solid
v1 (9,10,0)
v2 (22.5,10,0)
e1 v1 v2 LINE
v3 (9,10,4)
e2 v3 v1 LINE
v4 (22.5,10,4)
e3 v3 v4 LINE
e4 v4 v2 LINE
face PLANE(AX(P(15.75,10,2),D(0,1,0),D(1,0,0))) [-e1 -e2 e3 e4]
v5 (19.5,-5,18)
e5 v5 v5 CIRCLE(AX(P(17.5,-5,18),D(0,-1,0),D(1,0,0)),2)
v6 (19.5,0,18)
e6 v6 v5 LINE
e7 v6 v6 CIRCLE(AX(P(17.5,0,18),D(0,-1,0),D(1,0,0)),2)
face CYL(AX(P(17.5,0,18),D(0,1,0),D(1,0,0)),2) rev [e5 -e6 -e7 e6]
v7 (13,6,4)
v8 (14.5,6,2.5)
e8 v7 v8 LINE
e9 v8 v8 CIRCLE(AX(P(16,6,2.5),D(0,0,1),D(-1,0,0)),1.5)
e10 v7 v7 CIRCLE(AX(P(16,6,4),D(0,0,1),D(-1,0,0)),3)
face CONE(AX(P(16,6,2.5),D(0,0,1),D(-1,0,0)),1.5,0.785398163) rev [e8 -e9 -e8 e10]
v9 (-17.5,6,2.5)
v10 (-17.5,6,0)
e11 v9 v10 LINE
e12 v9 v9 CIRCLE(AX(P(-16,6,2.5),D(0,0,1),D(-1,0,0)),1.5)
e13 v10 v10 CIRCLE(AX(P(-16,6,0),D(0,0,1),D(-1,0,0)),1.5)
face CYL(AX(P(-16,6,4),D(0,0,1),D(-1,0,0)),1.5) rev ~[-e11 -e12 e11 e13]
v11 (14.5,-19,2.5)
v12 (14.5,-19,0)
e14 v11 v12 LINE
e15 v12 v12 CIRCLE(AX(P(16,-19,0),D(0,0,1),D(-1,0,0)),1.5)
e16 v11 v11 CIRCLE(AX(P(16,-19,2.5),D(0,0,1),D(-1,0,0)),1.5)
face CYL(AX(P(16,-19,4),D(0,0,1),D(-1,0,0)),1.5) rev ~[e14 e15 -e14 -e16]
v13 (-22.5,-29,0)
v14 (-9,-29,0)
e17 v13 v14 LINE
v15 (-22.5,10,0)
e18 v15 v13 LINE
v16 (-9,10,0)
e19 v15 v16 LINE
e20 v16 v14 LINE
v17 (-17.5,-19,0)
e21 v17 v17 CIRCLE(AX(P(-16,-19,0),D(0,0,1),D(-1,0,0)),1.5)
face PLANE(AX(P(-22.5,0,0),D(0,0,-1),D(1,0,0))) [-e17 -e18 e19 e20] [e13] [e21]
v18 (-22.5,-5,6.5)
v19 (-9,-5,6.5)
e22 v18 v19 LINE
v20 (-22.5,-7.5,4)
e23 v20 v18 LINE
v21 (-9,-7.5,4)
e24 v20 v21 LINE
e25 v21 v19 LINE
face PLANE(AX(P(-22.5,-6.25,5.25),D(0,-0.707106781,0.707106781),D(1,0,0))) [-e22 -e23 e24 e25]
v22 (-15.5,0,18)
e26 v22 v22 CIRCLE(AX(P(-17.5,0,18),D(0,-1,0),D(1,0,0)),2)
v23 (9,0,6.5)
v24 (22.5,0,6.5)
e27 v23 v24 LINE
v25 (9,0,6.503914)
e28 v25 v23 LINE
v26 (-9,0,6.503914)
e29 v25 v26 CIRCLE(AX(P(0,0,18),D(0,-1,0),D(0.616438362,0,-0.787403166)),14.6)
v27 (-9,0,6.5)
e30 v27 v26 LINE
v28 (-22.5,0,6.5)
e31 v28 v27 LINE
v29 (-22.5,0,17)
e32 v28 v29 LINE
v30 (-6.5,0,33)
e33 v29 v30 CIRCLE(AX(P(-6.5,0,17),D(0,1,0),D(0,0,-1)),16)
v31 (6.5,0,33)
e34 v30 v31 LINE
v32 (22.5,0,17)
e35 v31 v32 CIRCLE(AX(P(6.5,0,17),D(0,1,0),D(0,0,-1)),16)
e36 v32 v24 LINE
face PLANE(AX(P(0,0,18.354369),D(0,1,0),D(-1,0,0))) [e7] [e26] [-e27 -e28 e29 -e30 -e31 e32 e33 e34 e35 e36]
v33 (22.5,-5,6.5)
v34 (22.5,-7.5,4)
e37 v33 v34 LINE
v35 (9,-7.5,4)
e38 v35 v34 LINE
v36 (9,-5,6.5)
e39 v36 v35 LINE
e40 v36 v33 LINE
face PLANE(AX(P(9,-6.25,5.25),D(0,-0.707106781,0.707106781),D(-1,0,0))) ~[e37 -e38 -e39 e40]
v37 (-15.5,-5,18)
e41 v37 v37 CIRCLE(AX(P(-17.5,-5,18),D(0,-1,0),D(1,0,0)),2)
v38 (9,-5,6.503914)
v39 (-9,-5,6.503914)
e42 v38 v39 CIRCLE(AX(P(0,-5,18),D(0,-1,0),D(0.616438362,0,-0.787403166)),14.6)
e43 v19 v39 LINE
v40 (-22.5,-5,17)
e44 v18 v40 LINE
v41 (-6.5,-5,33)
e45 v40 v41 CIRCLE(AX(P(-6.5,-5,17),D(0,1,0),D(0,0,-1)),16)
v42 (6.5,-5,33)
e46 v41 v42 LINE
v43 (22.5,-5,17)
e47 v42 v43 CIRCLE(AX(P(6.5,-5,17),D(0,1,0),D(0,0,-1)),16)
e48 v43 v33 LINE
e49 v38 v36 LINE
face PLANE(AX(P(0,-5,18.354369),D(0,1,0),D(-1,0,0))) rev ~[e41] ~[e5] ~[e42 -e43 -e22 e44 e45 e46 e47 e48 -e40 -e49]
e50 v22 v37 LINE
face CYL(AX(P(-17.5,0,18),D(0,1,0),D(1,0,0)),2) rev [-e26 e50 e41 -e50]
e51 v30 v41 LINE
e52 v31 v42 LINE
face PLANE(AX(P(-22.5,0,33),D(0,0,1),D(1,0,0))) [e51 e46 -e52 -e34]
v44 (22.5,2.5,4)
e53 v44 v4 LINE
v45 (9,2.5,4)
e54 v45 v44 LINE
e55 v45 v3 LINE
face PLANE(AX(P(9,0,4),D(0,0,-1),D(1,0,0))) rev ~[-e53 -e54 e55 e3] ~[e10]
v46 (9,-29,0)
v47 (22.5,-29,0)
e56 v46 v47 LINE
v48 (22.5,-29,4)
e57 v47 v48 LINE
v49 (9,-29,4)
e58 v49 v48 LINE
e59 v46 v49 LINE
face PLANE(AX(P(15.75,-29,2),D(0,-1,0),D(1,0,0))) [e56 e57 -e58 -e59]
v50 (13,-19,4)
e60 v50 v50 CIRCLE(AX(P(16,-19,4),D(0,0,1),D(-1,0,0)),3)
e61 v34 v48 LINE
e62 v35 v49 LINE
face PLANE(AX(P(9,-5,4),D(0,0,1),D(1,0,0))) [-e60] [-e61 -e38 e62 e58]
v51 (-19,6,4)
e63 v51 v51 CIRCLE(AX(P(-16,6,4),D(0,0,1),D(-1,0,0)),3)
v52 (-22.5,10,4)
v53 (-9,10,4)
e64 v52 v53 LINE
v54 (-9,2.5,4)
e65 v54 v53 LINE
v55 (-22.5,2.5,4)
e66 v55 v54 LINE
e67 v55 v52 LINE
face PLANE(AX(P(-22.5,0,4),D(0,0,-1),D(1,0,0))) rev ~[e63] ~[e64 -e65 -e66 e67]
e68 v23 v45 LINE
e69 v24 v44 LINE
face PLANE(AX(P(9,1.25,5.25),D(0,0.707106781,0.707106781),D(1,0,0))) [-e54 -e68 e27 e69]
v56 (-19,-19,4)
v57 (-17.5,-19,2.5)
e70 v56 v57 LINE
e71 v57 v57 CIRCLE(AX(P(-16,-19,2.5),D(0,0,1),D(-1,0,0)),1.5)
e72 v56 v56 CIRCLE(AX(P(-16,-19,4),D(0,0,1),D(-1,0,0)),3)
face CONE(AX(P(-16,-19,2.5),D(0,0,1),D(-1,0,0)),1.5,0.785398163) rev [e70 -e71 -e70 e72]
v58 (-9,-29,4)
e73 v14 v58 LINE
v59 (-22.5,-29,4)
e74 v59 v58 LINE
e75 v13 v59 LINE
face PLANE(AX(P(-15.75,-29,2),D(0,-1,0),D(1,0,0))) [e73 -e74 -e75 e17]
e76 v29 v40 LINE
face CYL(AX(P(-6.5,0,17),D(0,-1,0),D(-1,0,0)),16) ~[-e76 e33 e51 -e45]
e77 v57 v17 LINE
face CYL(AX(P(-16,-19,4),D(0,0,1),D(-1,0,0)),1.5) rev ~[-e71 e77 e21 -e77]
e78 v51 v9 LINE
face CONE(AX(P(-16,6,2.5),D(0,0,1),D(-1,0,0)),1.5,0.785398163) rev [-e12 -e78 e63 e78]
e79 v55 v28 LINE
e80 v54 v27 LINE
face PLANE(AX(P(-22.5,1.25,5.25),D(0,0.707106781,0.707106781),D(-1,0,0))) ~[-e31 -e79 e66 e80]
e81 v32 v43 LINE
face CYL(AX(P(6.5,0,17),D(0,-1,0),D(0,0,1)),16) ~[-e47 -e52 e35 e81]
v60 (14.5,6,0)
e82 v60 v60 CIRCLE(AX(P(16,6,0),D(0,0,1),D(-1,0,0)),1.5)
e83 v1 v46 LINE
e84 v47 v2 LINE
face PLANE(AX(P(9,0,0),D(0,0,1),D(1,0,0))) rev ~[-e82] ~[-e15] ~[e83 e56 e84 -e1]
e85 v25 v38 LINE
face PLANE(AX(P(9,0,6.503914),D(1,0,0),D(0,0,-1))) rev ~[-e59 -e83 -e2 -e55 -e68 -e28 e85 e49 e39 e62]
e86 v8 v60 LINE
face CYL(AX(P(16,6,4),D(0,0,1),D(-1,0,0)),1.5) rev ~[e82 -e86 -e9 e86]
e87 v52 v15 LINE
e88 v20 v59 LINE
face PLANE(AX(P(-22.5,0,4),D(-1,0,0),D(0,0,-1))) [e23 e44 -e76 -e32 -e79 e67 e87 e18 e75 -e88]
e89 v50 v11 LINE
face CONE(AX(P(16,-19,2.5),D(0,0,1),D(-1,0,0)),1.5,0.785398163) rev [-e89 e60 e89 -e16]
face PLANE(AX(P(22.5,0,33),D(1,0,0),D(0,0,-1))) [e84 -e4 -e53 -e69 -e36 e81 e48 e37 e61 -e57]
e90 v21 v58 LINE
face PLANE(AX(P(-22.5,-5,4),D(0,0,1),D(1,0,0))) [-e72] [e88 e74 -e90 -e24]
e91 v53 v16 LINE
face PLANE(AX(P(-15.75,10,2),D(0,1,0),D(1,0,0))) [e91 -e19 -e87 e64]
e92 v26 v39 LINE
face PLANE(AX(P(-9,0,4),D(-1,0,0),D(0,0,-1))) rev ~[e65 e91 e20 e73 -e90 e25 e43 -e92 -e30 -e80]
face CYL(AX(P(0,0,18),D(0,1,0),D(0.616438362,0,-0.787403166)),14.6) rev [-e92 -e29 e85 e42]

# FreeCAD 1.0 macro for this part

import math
import FreeCAD as App
import Part
import Sketcher

V = App.Vector


def edges_at(feature, points):
    """Names of the edges that pass closest to the given points."""
    edges = feature.Shape.Edges
    near = lambda p: min(range(len(edges)), key=lambda i: edges[i].distToShape(Part.Vertex(*p))[0])
    return sorted({f"Edge{near(p) + 1}" for p in points})

doc = App.newDocument("Part")
body = doc.addObject("PartDesign::Body", "Body")

# Sketch on XZ plane
sketch1 = body.newObject("Sketcher::SketchObject", "Sketch")
sketch1.AttachmentSupport = (doc.getObject("XZ_Plane"), [""])
sketch1.MapMode = "FlatFace"
sketch1.addGeometry([
    Part.LineSegment(V(22.5, 33, 0), V(-22.5, 33, 0)),  # 0
    Part.LineSegment(V(-22.5, 33, 0), V(-22.5, 0, 0)),  # 1
    Part.LineSegment(V(-22.5, 0, 0), V(-9, 0, 0)),  # 2
    Part.LineSegment(V(-9, 0, 0), V(-9, 6.5, 0)),  # 3
    Part.ArcOfCircle(Part.Circle(V(0, 18, 0), V(0, 0, 1), 14.6), math.radians(-52), math.radians(232)),  # 4
    Part.LineSegment(V(9, 6.5, 0), V(9, 0, 0)),  # 5
    Part.LineSegment(V(9, 0, 0), V(22.5, 0, 0)),  # 6
    Part.LineSegment(V(22.5, 0, 0), V(22.5, 33, 0)),  # 7
    Part.Circle(V(17.5, 18, 0), V(0, 0, 1), 2),  # 8
    Part.Circle(V(-17.5, 18, 0), V(0, 0, 1), 2),  # 9
], False)
sketch1.addConstraint([
    Sketcher.Constraint("Coincident", 0, 2, 1, 1),
    Sketcher.Constraint("Coincident", 1, 2, 2, 1),
    Sketcher.Constraint("Coincident", 2, 2, 3, 1),
    Sketcher.Constraint("Coincident", 3, 2, 4, 2),
    Sketcher.Constraint("Coincident", 4, 1, 5, 1),
    Sketcher.Constraint("Coincident", 5, 2, 6, 1),
    Sketcher.Constraint("Coincident", 6, 2, 7, 1),
    Sketcher.Constraint("Coincident", 7, 2, 0, 1),
    Sketcher.Constraint("Horizontal", 0),
    Sketcher.Constraint("Vertical", 1),
    Sketcher.Constraint("Horizontal", 2),
    Sketcher.Constraint("Vertical", 3),
    Sketcher.Constraint("Vertical", 5),
    Sketcher.Constraint("Horizontal", 6),
    Sketcher.Constraint("Vertical", 7),
    Sketcher.Constraint("Equal", 8, 9),
    Sketcher.Constraint("Symmetric", 2, 2, 5, 2, -1, 1),
    Sketcher.Constraint("Symmetric", 8, 3, 9, 3, -2),
    Sketcher.Constraint("Symmetric", 1, 2, 6, 2, -2),
    Sketcher.Constraint("PointOnObject", 4, 3, -2),
    Sketcher.Constraint("Horizontal", 4, 3, 8, 3),
    Sketcher.Constraint("Diameter", 8, 4.0),
    Sketcher.Constraint("Radius", 4, 14.6),
    Sketcher.Constraint("DistanceX", 0, 2, 0, 1, 45.0),
    Sketcher.Constraint("DistanceY", 1, 2, 1, 1, 33.0),
    Sketcher.Constraint("DistanceX", 2, 1, 2, 2, 13.5),
    Sketcher.Constraint("DistanceY", -1, 1, 4, 3, 18.0),
    Sketcher.Constraint("DistanceX", 9, 3, 8, 3, 35.0),
])
pad1 = body.newObject("PartDesign::Pad", "Pad")
pad1.Profile = sketch1
pad1.Length = 5

# Sketch on XZ plane
sketch2 = body.newObject("Sketcher::SketchObject", "Sketch001")
sketch2.AttachmentSupport = (doc.getObject("XZ_Plane"), [""])
sketch2.MapMode = "FlatFace"
sketch2.AttachmentOffset = App.Placement(V(0, 0, 5), App.Rotation())
sketch2.addGeometry([
    Part.LineSegment(V(-22.5, 4, 0), V(-22.5, 0, 0)),  # 0
    Part.LineSegment(V(-22.5, 0, 0), V(-9, 0, 0)),  # 1
    Part.LineSegment(V(-9, 0, 0), V(-9, 4, 0)),  # 2
    Part.LineSegment(V(-9, 4, 0), V(-22.5, 4, 0)),  # 3
    Part.LineSegment(V(9, 4, 0), V(9, 0, 0)),  # 4
    Part.LineSegment(V(9, 0, 0), V(22.5, 0, 0)),  # 5
    Part.LineSegment(V(22.5, 0, 0), V(22.5, 4, 0)),  # 6
    Part.LineSegment(V(22.5, 4, 0), V(9, 4, 0)),  # 7
], False)
sketch2.addConstraint([
    Sketcher.Constraint("Coincident", 0, 2, 1, 1),
    Sketcher.Constraint("Coincident", 1, 2, 2, 1),
    Sketcher.Constraint("Coincident", 2, 2, 3, 1),
    Sketcher.Constraint("Coincident", 3, 2, 0, 1),
    Sketcher.Constraint("Coincident", 4, 2, 5, 1),
    Sketcher.Constraint("Coincident", 5, 2, 6, 1),
    Sketcher.Constraint("Coincident", 6, 2, 7, 1),
    Sketcher.Constraint("Coincident", 7, 2, 4, 1),
    Sketcher.Constraint("Vertical", 0),
    Sketcher.Constraint("Horizontal", 1),
    Sketcher.Constraint("Vertical", 2),
    Sketcher.Constraint("Horizontal", 3),
    Sketcher.Constraint("Vertical", 4),
    Sketcher.Constraint("Horizontal", 5),
    Sketcher.Constraint("Vertical", 6),
    Sketcher.Constraint("Horizontal", 7),
    Sketcher.Constraint("Symmetric", 1, 2, 4, 2, -1, 1),
    Sketcher.Constraint("Symmetric", 0, 2, 5, 2, -2),
    Sketcher.Constraint("Horizontal", 3, 2, 6, 2),
    Sketcher.Constraint("DistanceY", 0, 2, 0, 1, 4.0),
    Sketcher.Constraint("DistanceX", 1, 1, 1, 2, 13.5),
    Sketcher.Constraint("DistanceX", 1, 2, -1, 1, 9.0),
])
pad2 = body.newObject("PartDesign::Pad", "Pad001")
pad2.Profile = sketch2
pad2.Length = 24

# Sketch on XZ plane
sketch3 = body.newObject("Sketcher::SketchObject", "Sketch002")
sketch3.AttachmentSupport = (doc.getObject("XZ_Plane"), [""])
sketch3.MapMode = "FlatFace"
sketch3.addGeometry([
    Part.LineSegment(V(-22.5, 0, 0), V(-22.5, 4, 0)),  # 0
    Part.LineSegment(V(-22.5, 4, 0), V(-9, 4, 0)),  # 1
    Part.LineSegment(V(-9, 4, 0), V(-9, 0, 0)),  # 2
    Part.LineSegment(V(-9, 0, 0), V(-22.5, 0, 0)),  # 3
    Part.LineSegment(V(9, 0, 0), V(9, 4, 0)),  # 4
    Part.LineSegment(V(9, 4, 0), V(22.5, 4, 0)),  # 5
    Part.LineSegment(V(22.5, 4, 0), V(22.5, 0, 0)),  # 6
    Part.LineSegment(V(22.5, 0, 0), V(9, 0, 0)),  # 7
], False)
sketch3.addConstraint([
    Sketcher.Constraint("Coincident", 0, 2, 1, 1),
    Sketcher.Constraint("Coincident", 1, 2, 2, 1),
    Sketcher.Constraint("Coincident", 2, 2, 3, 1),
    Sketcher.Constraint("Coincident", 3, 2, 0, 1),
    Sketcher.Constraint("Coincident", 4, 2, 5, 1),
    Sketcher.Constraint("Coincident", 5, 2, 6, 1),
    Sketcher.Constraint("Coincident", 6, 2, 7, 1),
    Sketcher.Constraint("Coincident", 7, 2, 4, 1),
    Sketcher.Constraint("Vertical", 0),
    Sketcher.Constraint("Horizontal", 1),
    Sketcher.Constraint("Vertical", 2),
    Sketcher.Constraint("Horizontal", 3),
    Sketcher.Constraint("Vertical", 4),
    Sketcher.Constraint("Horizontal", 5),
    Sketcher.Constraint("Vertical", 6),
    Sketcher.Constraint("Horizontal", 7),
    Sketcher.Constraint("Symmetric", 3, 2, 6, 2, -1, 1),
    Sketcher.Constraint("Symmetric", 1, 2, 4, 2, -2),
    Sketcher.Constraint("PointOnObject", 2, 2, -1),
    Sketcher.Constraint("DistanceY", 0, 1, 0, 2, 4.0),
    Sketcher.Constraint("DistanceX", 1, 1, 1, 2, 13.5),
    Sketcher.Constraint("DistanceX", 1, 2, -1, 1, 9.0),
])
pad3 = body.newObject("PartDesign::Pad", "Pad002")
pad3.Profile = sketch3
pad3.Length = 10
pad3.Reversed = True

# Sketch on XY plane
sketch4 = body.newObject("Sketcher::SketchObject", "Sketch003")
sketch4.AttachmentSupport = (doc.getObject("XY_Plane"), [""])
sketch4.MapMode = "FlatFace"
sketch4.AttachmentOffset = App.Placement(V(0, 0, 4), App.Rotation())
sketch4.addGeometry([
    Part.Circle(V(16, -19, 0), V(0, 0, 1), 1.5),
    Part.Circle(V(-16, -19, 0), V(0, 0, 1), 1.5),
    Part.Circle(V(16, 6, 0), V(0, 0, 1), 1.5),
    Part.Circle(V(-16, 6, 0), V(0, 0, 1), 1.5),
], False)
sketch4.addConstraint([
    Sketcher.Constraint("Equal", 0, 1),
    Sketcher.Constraint("Equal", 1, 2),
    Sketcher.Constraint("Equal", 2, 3),
    Sketcher.Constraint("Symmetric", 0, 3, 1, 3, -2),
    Sketcher.Constraint("Symmetric", 2, 3, 3, 3, -2),
    Sketcher.Constraint("Vertical", 0, 3, 2, 3),
    Sketcher.Constraint("Diameter", 0, 3.0),
    Sketcher.Constraint("DistanceX", -1, 1, 0, 3, 16.0),
    Sketcher.Constraint("DistanceY", 0, 3, -1, 1, 19.0),
    Sketcher.Constraint("DistanceY", -1, 1, 2, 3, 6.0),
])
pocket1 = body.newObject("PartDesign::Pocket", "Pocket")
pocket1.Profile = sketch4
pocket1.Length = 5
doc.recompute()

chamfer = body.newObject("PartDesign::Chamfer", "Chamfer")
chamfer.Base = (pocket1, edges_at(pocket1, [
    (-14.5, -19, 4),
    (17.5, -19, 4),
    (-14.5, 6, 4),
    (17.5, 6, 4),
]))
chamfer.Size = 1.5
doc.recompute()

chamfer2 = body.newObject("PartDesign::Chamfer", "Chamfer001")
chamfer2.Base = (chamfer, edges_at(chamfer, [
    (-15.75, -5, 4),
    (15.75, -5, 4),
    (15.75, 0, 4),
    (-15.75, 0, 4),
]))
chamfer2.Size = 2.5
doc.recompute()

fillet = body.newObject("PartDesign::Fillet", "Fillet")
fillet.Base = (chamfer2, edges_at(chamfer2, [(-22.5, -2.5, 33), (22.5, -2.5, 33)]))
fillet.Radius = 16

doc.recompute()
